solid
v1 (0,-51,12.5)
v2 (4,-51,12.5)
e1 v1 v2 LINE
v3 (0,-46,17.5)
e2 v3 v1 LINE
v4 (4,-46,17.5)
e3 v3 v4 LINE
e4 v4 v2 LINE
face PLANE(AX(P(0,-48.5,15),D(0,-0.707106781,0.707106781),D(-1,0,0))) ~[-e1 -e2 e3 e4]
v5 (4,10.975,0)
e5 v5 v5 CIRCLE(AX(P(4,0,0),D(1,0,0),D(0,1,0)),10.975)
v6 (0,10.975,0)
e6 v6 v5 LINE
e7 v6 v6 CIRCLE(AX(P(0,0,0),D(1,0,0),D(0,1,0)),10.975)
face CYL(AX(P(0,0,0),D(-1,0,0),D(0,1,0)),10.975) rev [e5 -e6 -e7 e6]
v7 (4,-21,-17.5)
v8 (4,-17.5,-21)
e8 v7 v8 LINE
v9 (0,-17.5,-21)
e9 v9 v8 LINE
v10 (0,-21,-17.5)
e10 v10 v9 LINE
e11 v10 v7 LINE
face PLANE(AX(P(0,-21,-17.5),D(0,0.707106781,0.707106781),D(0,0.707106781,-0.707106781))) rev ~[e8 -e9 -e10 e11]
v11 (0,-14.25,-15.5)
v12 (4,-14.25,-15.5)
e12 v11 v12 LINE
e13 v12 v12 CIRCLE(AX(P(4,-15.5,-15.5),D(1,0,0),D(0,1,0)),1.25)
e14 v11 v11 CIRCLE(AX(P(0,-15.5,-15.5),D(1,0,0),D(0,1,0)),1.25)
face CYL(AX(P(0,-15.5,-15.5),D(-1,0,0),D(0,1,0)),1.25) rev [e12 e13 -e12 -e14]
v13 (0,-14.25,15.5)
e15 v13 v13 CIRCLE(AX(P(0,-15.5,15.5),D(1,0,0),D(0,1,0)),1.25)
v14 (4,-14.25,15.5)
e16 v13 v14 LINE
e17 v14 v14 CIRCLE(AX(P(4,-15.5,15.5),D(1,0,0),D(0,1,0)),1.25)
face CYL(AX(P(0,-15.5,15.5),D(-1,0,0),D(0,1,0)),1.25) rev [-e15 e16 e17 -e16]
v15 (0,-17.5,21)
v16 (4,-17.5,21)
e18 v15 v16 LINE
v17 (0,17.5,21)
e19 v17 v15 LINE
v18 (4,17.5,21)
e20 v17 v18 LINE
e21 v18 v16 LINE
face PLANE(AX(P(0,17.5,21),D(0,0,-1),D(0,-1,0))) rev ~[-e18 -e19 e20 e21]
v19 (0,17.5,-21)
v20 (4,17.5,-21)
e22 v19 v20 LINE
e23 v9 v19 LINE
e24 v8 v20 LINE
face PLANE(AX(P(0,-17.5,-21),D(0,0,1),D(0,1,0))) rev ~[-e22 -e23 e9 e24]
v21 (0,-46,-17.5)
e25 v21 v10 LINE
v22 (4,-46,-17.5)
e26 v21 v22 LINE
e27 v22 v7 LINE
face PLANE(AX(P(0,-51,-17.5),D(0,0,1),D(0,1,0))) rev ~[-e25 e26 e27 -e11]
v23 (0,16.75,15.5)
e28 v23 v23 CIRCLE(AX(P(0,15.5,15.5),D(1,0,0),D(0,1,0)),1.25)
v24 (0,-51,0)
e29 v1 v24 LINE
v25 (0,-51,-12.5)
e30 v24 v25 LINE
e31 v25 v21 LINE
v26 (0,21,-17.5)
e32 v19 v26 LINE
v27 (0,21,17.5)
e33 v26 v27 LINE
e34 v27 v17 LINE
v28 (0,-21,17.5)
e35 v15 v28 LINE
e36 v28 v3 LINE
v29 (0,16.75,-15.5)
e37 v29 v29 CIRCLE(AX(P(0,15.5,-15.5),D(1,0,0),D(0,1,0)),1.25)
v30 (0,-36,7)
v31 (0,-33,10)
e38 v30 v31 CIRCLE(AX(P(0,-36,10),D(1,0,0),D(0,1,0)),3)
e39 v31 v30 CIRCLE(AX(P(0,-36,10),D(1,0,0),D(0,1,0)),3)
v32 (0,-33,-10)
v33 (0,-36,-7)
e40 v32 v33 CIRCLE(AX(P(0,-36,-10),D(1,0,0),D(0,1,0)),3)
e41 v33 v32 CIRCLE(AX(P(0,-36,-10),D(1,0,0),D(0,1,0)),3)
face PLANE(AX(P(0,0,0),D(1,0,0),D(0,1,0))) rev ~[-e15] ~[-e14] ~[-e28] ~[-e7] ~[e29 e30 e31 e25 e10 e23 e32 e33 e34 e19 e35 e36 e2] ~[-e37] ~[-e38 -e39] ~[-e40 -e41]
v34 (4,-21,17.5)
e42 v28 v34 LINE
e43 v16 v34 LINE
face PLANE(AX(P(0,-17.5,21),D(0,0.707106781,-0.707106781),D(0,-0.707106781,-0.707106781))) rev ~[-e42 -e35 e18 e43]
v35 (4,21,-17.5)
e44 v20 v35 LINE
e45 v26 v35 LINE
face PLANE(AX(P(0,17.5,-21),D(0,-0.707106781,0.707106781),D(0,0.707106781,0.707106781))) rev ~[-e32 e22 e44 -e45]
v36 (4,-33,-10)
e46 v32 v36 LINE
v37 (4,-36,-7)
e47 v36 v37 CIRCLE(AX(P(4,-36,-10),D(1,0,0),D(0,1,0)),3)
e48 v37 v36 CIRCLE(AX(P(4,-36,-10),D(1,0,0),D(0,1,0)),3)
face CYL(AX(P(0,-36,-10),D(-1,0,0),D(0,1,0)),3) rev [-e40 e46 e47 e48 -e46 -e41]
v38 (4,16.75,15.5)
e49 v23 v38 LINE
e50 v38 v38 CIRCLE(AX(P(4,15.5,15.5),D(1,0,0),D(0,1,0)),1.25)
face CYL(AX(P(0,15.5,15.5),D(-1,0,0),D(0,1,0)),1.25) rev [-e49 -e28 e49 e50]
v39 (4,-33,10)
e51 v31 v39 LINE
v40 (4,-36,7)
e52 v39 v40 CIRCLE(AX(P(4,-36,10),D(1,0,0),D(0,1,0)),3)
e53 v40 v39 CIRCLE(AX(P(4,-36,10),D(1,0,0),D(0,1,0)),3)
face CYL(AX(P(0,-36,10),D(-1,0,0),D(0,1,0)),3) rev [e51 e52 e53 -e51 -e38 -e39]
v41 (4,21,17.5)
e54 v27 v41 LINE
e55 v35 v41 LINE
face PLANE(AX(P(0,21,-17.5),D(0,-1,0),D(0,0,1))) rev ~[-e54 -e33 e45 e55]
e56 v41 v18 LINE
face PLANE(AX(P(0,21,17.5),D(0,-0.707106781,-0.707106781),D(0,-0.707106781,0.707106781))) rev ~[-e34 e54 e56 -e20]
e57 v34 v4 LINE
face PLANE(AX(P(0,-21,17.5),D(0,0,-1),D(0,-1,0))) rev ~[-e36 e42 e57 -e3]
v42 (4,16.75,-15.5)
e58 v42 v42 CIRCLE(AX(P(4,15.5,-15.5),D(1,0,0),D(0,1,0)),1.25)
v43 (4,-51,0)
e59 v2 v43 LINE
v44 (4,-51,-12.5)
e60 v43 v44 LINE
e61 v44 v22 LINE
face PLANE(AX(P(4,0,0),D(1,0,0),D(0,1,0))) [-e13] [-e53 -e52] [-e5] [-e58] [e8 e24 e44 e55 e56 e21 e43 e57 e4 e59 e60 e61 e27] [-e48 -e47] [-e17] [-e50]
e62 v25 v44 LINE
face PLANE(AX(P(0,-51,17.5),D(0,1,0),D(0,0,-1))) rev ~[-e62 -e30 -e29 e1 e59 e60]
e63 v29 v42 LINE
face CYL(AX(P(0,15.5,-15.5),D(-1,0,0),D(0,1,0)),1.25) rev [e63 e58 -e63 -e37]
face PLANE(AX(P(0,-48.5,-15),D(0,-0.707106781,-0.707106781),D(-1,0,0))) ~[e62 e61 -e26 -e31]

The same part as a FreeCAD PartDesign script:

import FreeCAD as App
import Part
import Sketcher

V = App.Vector


def edges_at(feature, points):
    """Names of the edges that pass closest to the given points."""
    edges = feature.Shape.Edges
    near = lambda p: min(range(len(edges)), key=lambda i: edges[i].distToShape(Part.Vertex(*p))[0])
    return sorted({f"Edge{near(p) + 1}" for p in points})


def add_polygon(sketch, points):
    """Adds a closed chain of lines whose ends are joined by coincident constraints."""
    first, n = sketch.GeometryCount, len(points)
    for a, b in zip(points, points[1:] + points[:1]):
        sketch.addGeometry(Part.LineSegment(App.Vector(*a, 0), App.Vector(*b, 0)), False)
    for i in range(n):
        sketch.addConstraint(Sketcher.Constraint("Coincident", first + i, 2, first + (i + 1) % n, 1))

doc = App.newDocument("Part")
body = doc.addObject("PartDesign::Body", "Body")

sketch1 = body.newObject("Sketcher::SketchObject", "Sketch")
sketch1.AttachmentSupport = (doc.getObject("YZ_Plane"), [""])
sketch1.MapMode = "FlatFace"
add_polygon(sketch1, [(17.5, 21), (-17.5, 21), (-21, 17.5), (-51, 17.5), (-51, 0), (-51, -17.5), (-21, -17.5), (-17.5, -21), (17.5, -21), (21, -17.5), (21, 17.5)])
sketch1.addGeometry(Part.Circle(V(-15.5, -15.5, 0), V(0, 0, 1), 1.25), False)
sketch1.addGeometry(Part.Circle(V(15.5, -15.5, 0), V(0, 0, 1), 1.25), False)
sketch1.addGeometry(Part.Circle(V(-15.5, 15.5, 0), V(0, 0, 1), 1.25), False)
sketch1.addGeometry(Part.Circle(V(0, 0, 0), V(0, 0, 1), 10.975), False)
sketch1.addGeometry(Part.Circle(V(15.5, 15.5, 0), V(0, 0, 1), 1.25), False)
sketch1.addGeometry(Part.Circle(V(-36, -10, 0), V(0, 0, 1), 3), False)
sketch1.addGeometry(Part.Circle(V(-36, 10, 0), V(0, 0, 1), 3), False)
sketch1.addConstraint([
    Sketcher.Constraint("Horizontal", 0),
    Sketcher.Constraint("Horizontal", 2),
    Sketcher.Constraint("Vertical", 3),
    Sketcher.Constraint("Vertical", 4),
    Sketcher.Constraint("Horizontal", 5),
    Sketcher.Constraint("Horizontal", 7),
    Sketcher.Constraint("Vertical", 9),
    Sketcher.Constraint("Coincident", 14, 3, -1, 1),
    Sketcher.Constraint("Equal", 11, 12),
    Sketcher.Constraint("Equal", 12, 13),
    Sketcher.Constraint("Equal", 13, 15),
    Sketcher.Constraint("Equal", 16, 17),
    Sketcher.Constraint("Symmetric", 12, 3, 13, 3, -1, 1),
    Sketcher.Constraint("Symmetric", 11, 3, 15, 3, -1, 1),
    Sketcher.Constraint("Symmetric", 0, 2, 7, 2, -1, 1),
    Sketcher.Constraint("Symmetric", 1, 2, 8, 2, -1, 1),
    Sketcher.Constraint("Symmetric", 5, 2, 9, 2, -1, 1),
    Sketcher.Constraint("Symmetric", 11, 3, 12, 3, -2),
    Sketcher.Constraint("Symmetric", 16, 3, 17, 3, -1),
    Sketcher.Constraint("PointOnObject", 3, 2, -1),
    Sketcher.Constraint("Perpendicular", 1, 6),
    Sketcher.Constraint("Perpendicular", 8, 10),
    Sketcher.Constraint("Horizontal", 5, 2, 8, 2),
    Sketcher.Constraint("Vertical", 0, 2, 6, 2),
    Sketcher.Constraint("Equal", 7, 9),
    Sketcher.Constraint("Diameter", 16, 6.0),
    Sketcher.Constraint("Diameter", 14, 21.95),
    Sketcher.Constraint("DistanceX", 2, 2, 2, 1, 30.0),
    Sketcher.Constraint("DistanceY", 16, 3, -1, 1, 10.0),
    Sketcher.Constraint("DistanceX", 17, 3, 1, 2, 15.0),
    Sketcher.Constraint("Diameter", 11, 2.5),
    Sketcher.Constraint("DistanceX", 0, 2, 0, 1, 35.0),
    Sketcher.Constraint("DistanceX", 16, 3, -1, 1, 36.0),
    Sketcher.Constraint("DistanceX", 11, 3, 12, 3, 31.0),
    Sketcher.Constraint("DistanceY", 11, 3, 13, 3, 31.0),
])
pad1 = body.newObject("PartDesign::Pad", "Pad")
pad1.Profile = sketch1
pad1.Length = 4
doc.recompute()

chamfer = body.newObject("PartDesign::Chamfer", "Chamfer")
chamfer.Base = (pad1, edges_at(pad1, [(2, -51, 17.5), (2, -51, -17.5)]))
chamfer.Size = 5

doc.recompute()
